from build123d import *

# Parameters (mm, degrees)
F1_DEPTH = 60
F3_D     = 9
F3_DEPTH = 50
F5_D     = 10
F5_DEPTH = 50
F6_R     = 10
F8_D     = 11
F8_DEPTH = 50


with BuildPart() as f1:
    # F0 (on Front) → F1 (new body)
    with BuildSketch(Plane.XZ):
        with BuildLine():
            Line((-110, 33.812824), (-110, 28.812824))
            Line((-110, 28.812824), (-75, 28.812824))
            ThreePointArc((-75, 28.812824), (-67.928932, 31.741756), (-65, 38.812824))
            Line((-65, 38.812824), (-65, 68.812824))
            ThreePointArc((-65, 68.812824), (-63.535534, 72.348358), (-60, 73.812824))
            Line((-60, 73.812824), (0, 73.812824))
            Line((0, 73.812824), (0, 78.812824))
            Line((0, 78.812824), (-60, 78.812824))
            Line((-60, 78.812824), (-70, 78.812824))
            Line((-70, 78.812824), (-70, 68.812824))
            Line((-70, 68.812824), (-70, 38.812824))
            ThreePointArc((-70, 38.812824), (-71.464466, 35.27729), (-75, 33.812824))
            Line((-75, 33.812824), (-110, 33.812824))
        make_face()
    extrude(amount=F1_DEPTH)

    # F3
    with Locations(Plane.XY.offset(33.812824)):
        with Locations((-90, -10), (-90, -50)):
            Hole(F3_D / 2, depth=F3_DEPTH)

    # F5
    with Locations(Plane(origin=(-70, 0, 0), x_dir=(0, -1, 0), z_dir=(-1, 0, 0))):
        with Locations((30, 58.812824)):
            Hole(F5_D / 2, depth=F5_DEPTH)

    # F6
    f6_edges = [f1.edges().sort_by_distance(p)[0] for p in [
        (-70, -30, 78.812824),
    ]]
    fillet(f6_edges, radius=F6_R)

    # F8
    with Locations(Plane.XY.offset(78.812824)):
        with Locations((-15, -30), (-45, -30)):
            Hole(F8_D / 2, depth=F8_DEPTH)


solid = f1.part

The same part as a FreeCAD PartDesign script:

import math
import FreeCAD as App
import Part
import Sketcher

V = App.Vector
Q = App.Units.Quantity


def edges_at(feature, points):
    """Names of the edges that pass closest to the given points."""
    edges = feature.Shape.Edges
    near = lambda p: min(range(len(edges)), key=lambda i: edges[i].distToShape(Part.Vertex(*p))[0])
    return sorted({f"Edge{near(p) + 1}" for p in points})

doc = App.newDocument("Part")
body = doc.addObject("PartDesign::Body", "Body")

# Sketch on XZ plane
sketch1 = body.newObject("Sketcher::SketchObject", "Sketch")
sketch1.AttachmentSupport = (doc.getObject("XZ_Plane"), [""])
sketch1.MapMode = "FlatFace"
sketch1.addGeometry([
    Part.LineSegment(V(-110, 33.8, 0), V(-110, 28.8, 0)),  # 0
    Part.LineSegment(V(-110, 28.8, 0), V(-75, 28.8, 0)),  # 1
    Part.ArcOfCircle(Part.Circle(V(-75, 38.8, 0), V(0, 0, 1), 10), math.radians(-90), math.radians(0)),  # 2
    Part.LineSegment(V(-65, 38.8, 0), V(-65, 68.8, 0)),  # 3
    Part.ArcOfCircle(Part.Circle(V(-60, 68.8, 0), V(0, 0, 1), 5), math.radians(90), math.radians(180)),  # 4
    Part.LineSegment(V(-60, 73.8, 0), V(0, 73.8, 0)),  # 5
    Part.LineSegment(V(0, 73.8, 0), V(0, 78.8, 0)),  # 6
    Part.LineSegment(V(0, 78.8, 0), V(-70, 78.8, 0)),  # 7
    Part.LineSegment(V(-70, 78.8, 0), V(-70, 38.8, 0)),  # 8
    Part.ArcOfCircle(Part.Circle(V(-75, 38.8, 0), V(0, 0, 1), 5), math.radians(-90), math.radians(0)),  # 9
    Part.LineSegment(V(-75, 33.8, 0), V(-110, 33.8, 0)),  # 10
], False)
sketch1.addConstraint([
    Sketcher.Constraint("Coincident", 0, 2, 1, 1),
    Sketcher.Constraint("Tangent", 1, 2, 2, 1),
    Sketcher.Constraint("Tangent", 2, 2, 3, 1),
    Sketcher.Constraint("Tangent", 3, 2, 4, 2),
    Sketcher.Constraint("Tangent", 4, 1, 5, 1),
    Sketcher.Constraint("Coincident", 5, 2, 6, 1),
    Sketcher.Constraint("Coincident", 6, 2, 7, 1),
    Sketcher.Constraint("Coincident", 7, 2, 8, 1),
    Sketcher.Constraint("Tangent", 8, 2, 9, 2),
    Sketcher.Constraint("Tangent", 9, 1, 10, 1),
    Sketcher.Constraint("Coincident", 10, 2, 0, 1),
    Sketcher.Constraint("Vertical", 0),
    Sketcher.Constraint("Horizontal", 1),
    Sketcher.Constraint("Vertical", 3),
    Sketcher.Constraint("Horizontal", 5),
    Sketcher.Constraint("Vertical", 6),
    Sketcher.Constraint("Horizontal", 7),
    Sketcher.Constraint("Vertical", 8),
    Sketcher.Constraint("Horizontal", 10),
    Sketcher.Constraint("Coincident", 9, 3, 2, 3),
    Sketcher.Constraint("Equal", 4, 9),
    Sketcher.Constraint("PointOnObject", 5, 2, -2),
    Sketcher.Constraint("Equal", 0, 6),
    Sketcher.Constraint("Radius", 2, Q("9.999999 mm")),
    Sketcher.Constraint("Radius", 4, Q("5 mm")),
    Sketcher.Constraint("DistanceX", 1, 1, 1, 2, Q("35 mm")),
    Sketcher.Constraint("DistanceX", 5, 1, 5, 2, Q("60 mm")),
    Sketcher.Constraint("DistanceY", 3, 1, 3, 2, Q("30 mm")),
    Sketcher.Constraint("DistanceY", -1, 1, 2, 3, Q("38.812823 mm")),
])
pad1 = body.newObject("PartDesign::Pad", "Pad")
pad1.Profile = sketch1
pad1.Length = 60

# Sketch on XY plane
sketch2 = body.newObject("Sketcher::SketchObject", "Sketch001")
sketch2.AttachmentSupport = (doc.getObject("XY_Plane"), [""])
sketch2.MapMode = "FlatFace"
sketch2.AttachmentOffset = App.Placement(V(0, 0, 33.812824), App.Rotation())
sketch2.addGeometry([
    Part.Circle(V(-90, -10, 0), V(0, 0, 1), 4.5),
    Part.Circle(V(-90, -50, 0), V(0, 0, 1), 4.5),
], False)
sketch2.addConstraint([
    Sketcher.Constraint("Equal", 0, 1),
    Sketcher.Constraint("Vertical", 0, 3, 1, 3),
    Sketcher.Constraint("Diameter", 0, Q("9 mm")),
    Sketcher.Constraint("DistanceX", 0, 3, -1, 1, Q("90 mm")),
    Sketcher.Constraint("DistanceY", 0, 3, -1, 1, Q("10 mm")),
    Sketcher.Constraint("DistanceY", 1, 3, -1, 1, Q("50 mm")),
])
doc.recompute()
hole = body.newObject("PartDesign::Hole", "Hole")
hole.Profile = sketch2
hole.ThreadType = "None"
hole.Diameter = 9
hole.DepthType = "Dimension"
hole.Depth = 50
hole.DrillPoint = "Flat"

# Sketch on YZ plane
sketch3 = body.newObject("Sketcher::SketchObject", "Sketch002")
sketch3.AttachmentSupport = (doc.getObject("YZ_Plane"), [""])
sketch3.MapMode = "FlatFace"
sketch3.AttachmentOffset = App.Placement(V(0, 0, -70), App.Rotation())
sketch3.addGeometry(Part.Circle(V(-30, 59, 0), V(0, 0, 1), 5), False)
sketch3.addConstraint([
    Sketcher.Constraint("Diameter", 0, Q("10 mm")),
    Sketcher.Constraint("DistanceX", 0, 3, -1, 1, Q("30 mm")),
    Sketcher.Constraint("DistanceY", -1, 1, 0, 3, Q("58.812824 mm")),
])
doc.recompute()
hole2 = body.newObject("PartDesign::Hole", "Hole001")
hole2.Profile = sketch3
hole2.ThreadType = "None"
hole2.Diameter = 10
hole2.DepthType = "Dimension"
hole2.Depth = 50
hole2.DrillPoint = "Flat"
hole2.Reversed = True
doc.recompute()

fillet = body.newObject("PartDesign::Fillet", "Fillet")
fillet.Base = (hole2, edges_at(hole2, [(-70, -30, 78.813)]))
fillet.Radius = 10

# Sketch on XY plane
sketch4 = body.newObject("Sketcher::SketchObject", "Sketch003")
sketch4.AttachmentSupport = (doc.getObject("XY_Plane"), [""])
sketch4.MapMode = "FlatFace"
sketch4.AttachmentOffset = App.Placement(V(0, 0, 78.812824), App.Rotation())
sketch4.addGeometry([
    Part.Circle(V(-15, -30, 0), V(0, 0, 1), 6),
    Part.Circle(V(-45, -30, 0), V(0, 0, 1), 6),
], False)
sketch4.addConstraint([
    Sketcher.Constraint("Equal", 0, 1),
    Sketcher.Constraint("Horizontal", 0, 3, 1, 3),
    Sketcher.Constraint("Diameter", 0, Q("11 mm")),
    Sketcher.Constraint("DistanceX", 0, 3, -1, 1, Q("15 mm")),
    Sketcher.Constraint("DistanceY", 0, 3, -1, 1, Q("30 mm")),
    Sketcher.Constraint("DistanceX", 1, 3, -1, 1, Q("45 mm")),
])
doc.recompute()
hole3 = body.newObject("PartDesign::Hole", "Hole002")
hole3.Profile = sketch4
hole3.ThreadType = "None"
hole3.Diameter = 11
hole3.DepthType = "Dimension"
hole3.Depth = 50
hole3.DrillPoint = "Flat"

doc.recompute()
